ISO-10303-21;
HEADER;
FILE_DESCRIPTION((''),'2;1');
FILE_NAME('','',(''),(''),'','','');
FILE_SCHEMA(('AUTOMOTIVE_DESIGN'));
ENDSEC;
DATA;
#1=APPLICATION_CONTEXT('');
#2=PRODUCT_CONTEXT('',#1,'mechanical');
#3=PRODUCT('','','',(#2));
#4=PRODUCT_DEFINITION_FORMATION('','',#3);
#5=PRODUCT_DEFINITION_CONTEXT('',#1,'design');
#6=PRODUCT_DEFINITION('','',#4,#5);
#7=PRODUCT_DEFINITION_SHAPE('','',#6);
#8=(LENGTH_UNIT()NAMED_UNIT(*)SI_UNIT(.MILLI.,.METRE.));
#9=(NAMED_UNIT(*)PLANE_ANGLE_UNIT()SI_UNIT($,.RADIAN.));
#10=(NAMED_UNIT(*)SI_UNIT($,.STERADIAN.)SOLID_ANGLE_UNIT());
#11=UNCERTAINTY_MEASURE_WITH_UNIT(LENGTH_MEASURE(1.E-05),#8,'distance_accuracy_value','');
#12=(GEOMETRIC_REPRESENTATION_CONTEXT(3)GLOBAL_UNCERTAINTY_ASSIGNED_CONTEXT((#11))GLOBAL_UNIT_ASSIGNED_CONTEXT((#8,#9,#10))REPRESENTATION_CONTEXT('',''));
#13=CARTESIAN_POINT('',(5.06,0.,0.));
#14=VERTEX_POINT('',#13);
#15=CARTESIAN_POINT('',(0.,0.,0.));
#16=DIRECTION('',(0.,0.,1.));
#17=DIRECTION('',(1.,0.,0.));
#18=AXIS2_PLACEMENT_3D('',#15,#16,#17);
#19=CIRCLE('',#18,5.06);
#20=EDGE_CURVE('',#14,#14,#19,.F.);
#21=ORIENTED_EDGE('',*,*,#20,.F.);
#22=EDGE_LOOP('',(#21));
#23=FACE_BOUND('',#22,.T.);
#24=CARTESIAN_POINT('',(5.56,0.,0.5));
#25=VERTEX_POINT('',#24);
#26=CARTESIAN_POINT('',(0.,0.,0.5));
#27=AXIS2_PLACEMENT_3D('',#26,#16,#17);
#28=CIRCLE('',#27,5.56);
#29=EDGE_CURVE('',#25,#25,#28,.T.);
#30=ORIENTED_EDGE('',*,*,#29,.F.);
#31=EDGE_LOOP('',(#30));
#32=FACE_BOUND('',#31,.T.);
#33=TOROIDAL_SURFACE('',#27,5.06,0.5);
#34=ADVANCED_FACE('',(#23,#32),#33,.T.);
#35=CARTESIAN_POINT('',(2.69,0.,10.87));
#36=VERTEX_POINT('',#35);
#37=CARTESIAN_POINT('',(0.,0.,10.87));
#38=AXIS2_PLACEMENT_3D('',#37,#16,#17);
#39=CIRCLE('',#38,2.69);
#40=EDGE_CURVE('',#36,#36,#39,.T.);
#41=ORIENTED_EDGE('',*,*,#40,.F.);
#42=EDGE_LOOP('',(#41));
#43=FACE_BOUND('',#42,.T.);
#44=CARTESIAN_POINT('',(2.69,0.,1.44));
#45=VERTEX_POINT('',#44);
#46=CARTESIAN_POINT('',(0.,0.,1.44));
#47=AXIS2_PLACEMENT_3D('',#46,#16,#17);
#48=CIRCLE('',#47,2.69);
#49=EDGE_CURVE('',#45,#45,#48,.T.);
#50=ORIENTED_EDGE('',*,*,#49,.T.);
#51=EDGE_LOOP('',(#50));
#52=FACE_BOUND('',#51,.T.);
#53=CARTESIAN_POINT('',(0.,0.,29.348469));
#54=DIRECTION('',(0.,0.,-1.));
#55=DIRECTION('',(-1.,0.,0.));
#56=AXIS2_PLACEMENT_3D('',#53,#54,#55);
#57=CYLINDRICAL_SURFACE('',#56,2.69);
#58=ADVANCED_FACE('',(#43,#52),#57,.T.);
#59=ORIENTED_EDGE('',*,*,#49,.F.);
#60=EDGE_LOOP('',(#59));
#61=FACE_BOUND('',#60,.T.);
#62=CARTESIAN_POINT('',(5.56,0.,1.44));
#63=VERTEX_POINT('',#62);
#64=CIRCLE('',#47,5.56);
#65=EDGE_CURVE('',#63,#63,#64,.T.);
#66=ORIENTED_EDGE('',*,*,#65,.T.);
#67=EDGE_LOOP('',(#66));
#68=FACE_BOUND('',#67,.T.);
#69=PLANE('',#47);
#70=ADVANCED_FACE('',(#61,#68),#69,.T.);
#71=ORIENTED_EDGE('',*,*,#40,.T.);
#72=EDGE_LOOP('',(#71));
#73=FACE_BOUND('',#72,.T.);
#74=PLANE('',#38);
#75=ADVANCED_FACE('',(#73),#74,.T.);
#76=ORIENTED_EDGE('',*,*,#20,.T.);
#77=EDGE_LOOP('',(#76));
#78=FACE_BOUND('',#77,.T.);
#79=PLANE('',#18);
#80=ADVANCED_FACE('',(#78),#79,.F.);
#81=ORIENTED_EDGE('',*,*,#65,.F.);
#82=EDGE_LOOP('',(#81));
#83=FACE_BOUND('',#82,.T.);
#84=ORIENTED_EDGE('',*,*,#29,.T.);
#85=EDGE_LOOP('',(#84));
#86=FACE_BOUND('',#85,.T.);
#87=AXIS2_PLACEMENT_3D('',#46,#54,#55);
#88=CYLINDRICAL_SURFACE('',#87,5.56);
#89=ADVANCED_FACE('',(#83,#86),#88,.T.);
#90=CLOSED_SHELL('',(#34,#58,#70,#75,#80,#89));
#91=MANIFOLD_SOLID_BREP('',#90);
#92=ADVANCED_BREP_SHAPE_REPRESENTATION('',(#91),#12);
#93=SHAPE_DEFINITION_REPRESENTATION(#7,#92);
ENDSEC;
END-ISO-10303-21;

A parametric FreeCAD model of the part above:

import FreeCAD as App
import Part
import Sketcher
from FreeCAD import Vector
Q = App.Units.Quantity


def edges_at(feature, points):
    """Names of the edges that pass closest to the given points."""
    edges = feature.Shape.Edges
    near = lambda p: min(range(len(edges)), key=lambda i: edges[i].distToShape(Part.Vertex(*p))[0])
    return sorted({f"Edge{near(p) + 1}" for p in points})

doc = App.newDocument("Part")
body = doc.addObject("PartDesign::Body", "Body")

sketch1 = body.newObject("Sketcher::SketchObject", "Sketch")
sketch1.AttachmentSupport = (doc.getObject("XY_Plane"), [""])
sketch1.MapMode = "FlatFace"
sketch1.addGeometry(Part.Circle(Vector(0, 0, 0), Vector(0, 0, 1), 5.56), False)
sketch1.addConstraint(Sketcher.Constraint("Coincident", 0, 3, -1, 1))
sketch1.addConstraint(Sketcher.Constraint("Diameter", 0, Q("11.12 mm")))
pad1 = body.newObject("PartDesign::Pad", "Pad")
pad1.Profile = sketch1
pad1.Length = 1.44

sketch2 = body.newObject("Sketcher::SketchObject", "Sketch001")
sketch2.AttachmentSupport = (doc.getObject("XY_Plane"), [""])
sketch2.MapMode = "FlatFace"
sketch2.AttachmentOffset = App.Placement(Vector(0, 0, 1.44), App.Rotation())
sketch2.addGeometry(Part.Circle(Vector(0, 0, 0), Vector(0, 0, 1), 2.69), False)
sketch2.addConstraint(Sketcher.Constraint("Coincident", 0, 3, -1, 1))
sketch2.addConstraint(Sketcher.Constraint("Diameter", 0, Q("5.38 mm")))
pad2 = body.newObject("PartDesign::Pad", "Pad001")
pad2.Profile = sketch2
pad2.Length = 9.43
doc.recompute()

fillet = body.newObject("PartDesign::Fillet", "Fillet")
fillet.Base = (pad2, edges_at(pad2, [(-5.56, 0, 0)]))
fillet.Radius = 0.5

doc.recompute()
